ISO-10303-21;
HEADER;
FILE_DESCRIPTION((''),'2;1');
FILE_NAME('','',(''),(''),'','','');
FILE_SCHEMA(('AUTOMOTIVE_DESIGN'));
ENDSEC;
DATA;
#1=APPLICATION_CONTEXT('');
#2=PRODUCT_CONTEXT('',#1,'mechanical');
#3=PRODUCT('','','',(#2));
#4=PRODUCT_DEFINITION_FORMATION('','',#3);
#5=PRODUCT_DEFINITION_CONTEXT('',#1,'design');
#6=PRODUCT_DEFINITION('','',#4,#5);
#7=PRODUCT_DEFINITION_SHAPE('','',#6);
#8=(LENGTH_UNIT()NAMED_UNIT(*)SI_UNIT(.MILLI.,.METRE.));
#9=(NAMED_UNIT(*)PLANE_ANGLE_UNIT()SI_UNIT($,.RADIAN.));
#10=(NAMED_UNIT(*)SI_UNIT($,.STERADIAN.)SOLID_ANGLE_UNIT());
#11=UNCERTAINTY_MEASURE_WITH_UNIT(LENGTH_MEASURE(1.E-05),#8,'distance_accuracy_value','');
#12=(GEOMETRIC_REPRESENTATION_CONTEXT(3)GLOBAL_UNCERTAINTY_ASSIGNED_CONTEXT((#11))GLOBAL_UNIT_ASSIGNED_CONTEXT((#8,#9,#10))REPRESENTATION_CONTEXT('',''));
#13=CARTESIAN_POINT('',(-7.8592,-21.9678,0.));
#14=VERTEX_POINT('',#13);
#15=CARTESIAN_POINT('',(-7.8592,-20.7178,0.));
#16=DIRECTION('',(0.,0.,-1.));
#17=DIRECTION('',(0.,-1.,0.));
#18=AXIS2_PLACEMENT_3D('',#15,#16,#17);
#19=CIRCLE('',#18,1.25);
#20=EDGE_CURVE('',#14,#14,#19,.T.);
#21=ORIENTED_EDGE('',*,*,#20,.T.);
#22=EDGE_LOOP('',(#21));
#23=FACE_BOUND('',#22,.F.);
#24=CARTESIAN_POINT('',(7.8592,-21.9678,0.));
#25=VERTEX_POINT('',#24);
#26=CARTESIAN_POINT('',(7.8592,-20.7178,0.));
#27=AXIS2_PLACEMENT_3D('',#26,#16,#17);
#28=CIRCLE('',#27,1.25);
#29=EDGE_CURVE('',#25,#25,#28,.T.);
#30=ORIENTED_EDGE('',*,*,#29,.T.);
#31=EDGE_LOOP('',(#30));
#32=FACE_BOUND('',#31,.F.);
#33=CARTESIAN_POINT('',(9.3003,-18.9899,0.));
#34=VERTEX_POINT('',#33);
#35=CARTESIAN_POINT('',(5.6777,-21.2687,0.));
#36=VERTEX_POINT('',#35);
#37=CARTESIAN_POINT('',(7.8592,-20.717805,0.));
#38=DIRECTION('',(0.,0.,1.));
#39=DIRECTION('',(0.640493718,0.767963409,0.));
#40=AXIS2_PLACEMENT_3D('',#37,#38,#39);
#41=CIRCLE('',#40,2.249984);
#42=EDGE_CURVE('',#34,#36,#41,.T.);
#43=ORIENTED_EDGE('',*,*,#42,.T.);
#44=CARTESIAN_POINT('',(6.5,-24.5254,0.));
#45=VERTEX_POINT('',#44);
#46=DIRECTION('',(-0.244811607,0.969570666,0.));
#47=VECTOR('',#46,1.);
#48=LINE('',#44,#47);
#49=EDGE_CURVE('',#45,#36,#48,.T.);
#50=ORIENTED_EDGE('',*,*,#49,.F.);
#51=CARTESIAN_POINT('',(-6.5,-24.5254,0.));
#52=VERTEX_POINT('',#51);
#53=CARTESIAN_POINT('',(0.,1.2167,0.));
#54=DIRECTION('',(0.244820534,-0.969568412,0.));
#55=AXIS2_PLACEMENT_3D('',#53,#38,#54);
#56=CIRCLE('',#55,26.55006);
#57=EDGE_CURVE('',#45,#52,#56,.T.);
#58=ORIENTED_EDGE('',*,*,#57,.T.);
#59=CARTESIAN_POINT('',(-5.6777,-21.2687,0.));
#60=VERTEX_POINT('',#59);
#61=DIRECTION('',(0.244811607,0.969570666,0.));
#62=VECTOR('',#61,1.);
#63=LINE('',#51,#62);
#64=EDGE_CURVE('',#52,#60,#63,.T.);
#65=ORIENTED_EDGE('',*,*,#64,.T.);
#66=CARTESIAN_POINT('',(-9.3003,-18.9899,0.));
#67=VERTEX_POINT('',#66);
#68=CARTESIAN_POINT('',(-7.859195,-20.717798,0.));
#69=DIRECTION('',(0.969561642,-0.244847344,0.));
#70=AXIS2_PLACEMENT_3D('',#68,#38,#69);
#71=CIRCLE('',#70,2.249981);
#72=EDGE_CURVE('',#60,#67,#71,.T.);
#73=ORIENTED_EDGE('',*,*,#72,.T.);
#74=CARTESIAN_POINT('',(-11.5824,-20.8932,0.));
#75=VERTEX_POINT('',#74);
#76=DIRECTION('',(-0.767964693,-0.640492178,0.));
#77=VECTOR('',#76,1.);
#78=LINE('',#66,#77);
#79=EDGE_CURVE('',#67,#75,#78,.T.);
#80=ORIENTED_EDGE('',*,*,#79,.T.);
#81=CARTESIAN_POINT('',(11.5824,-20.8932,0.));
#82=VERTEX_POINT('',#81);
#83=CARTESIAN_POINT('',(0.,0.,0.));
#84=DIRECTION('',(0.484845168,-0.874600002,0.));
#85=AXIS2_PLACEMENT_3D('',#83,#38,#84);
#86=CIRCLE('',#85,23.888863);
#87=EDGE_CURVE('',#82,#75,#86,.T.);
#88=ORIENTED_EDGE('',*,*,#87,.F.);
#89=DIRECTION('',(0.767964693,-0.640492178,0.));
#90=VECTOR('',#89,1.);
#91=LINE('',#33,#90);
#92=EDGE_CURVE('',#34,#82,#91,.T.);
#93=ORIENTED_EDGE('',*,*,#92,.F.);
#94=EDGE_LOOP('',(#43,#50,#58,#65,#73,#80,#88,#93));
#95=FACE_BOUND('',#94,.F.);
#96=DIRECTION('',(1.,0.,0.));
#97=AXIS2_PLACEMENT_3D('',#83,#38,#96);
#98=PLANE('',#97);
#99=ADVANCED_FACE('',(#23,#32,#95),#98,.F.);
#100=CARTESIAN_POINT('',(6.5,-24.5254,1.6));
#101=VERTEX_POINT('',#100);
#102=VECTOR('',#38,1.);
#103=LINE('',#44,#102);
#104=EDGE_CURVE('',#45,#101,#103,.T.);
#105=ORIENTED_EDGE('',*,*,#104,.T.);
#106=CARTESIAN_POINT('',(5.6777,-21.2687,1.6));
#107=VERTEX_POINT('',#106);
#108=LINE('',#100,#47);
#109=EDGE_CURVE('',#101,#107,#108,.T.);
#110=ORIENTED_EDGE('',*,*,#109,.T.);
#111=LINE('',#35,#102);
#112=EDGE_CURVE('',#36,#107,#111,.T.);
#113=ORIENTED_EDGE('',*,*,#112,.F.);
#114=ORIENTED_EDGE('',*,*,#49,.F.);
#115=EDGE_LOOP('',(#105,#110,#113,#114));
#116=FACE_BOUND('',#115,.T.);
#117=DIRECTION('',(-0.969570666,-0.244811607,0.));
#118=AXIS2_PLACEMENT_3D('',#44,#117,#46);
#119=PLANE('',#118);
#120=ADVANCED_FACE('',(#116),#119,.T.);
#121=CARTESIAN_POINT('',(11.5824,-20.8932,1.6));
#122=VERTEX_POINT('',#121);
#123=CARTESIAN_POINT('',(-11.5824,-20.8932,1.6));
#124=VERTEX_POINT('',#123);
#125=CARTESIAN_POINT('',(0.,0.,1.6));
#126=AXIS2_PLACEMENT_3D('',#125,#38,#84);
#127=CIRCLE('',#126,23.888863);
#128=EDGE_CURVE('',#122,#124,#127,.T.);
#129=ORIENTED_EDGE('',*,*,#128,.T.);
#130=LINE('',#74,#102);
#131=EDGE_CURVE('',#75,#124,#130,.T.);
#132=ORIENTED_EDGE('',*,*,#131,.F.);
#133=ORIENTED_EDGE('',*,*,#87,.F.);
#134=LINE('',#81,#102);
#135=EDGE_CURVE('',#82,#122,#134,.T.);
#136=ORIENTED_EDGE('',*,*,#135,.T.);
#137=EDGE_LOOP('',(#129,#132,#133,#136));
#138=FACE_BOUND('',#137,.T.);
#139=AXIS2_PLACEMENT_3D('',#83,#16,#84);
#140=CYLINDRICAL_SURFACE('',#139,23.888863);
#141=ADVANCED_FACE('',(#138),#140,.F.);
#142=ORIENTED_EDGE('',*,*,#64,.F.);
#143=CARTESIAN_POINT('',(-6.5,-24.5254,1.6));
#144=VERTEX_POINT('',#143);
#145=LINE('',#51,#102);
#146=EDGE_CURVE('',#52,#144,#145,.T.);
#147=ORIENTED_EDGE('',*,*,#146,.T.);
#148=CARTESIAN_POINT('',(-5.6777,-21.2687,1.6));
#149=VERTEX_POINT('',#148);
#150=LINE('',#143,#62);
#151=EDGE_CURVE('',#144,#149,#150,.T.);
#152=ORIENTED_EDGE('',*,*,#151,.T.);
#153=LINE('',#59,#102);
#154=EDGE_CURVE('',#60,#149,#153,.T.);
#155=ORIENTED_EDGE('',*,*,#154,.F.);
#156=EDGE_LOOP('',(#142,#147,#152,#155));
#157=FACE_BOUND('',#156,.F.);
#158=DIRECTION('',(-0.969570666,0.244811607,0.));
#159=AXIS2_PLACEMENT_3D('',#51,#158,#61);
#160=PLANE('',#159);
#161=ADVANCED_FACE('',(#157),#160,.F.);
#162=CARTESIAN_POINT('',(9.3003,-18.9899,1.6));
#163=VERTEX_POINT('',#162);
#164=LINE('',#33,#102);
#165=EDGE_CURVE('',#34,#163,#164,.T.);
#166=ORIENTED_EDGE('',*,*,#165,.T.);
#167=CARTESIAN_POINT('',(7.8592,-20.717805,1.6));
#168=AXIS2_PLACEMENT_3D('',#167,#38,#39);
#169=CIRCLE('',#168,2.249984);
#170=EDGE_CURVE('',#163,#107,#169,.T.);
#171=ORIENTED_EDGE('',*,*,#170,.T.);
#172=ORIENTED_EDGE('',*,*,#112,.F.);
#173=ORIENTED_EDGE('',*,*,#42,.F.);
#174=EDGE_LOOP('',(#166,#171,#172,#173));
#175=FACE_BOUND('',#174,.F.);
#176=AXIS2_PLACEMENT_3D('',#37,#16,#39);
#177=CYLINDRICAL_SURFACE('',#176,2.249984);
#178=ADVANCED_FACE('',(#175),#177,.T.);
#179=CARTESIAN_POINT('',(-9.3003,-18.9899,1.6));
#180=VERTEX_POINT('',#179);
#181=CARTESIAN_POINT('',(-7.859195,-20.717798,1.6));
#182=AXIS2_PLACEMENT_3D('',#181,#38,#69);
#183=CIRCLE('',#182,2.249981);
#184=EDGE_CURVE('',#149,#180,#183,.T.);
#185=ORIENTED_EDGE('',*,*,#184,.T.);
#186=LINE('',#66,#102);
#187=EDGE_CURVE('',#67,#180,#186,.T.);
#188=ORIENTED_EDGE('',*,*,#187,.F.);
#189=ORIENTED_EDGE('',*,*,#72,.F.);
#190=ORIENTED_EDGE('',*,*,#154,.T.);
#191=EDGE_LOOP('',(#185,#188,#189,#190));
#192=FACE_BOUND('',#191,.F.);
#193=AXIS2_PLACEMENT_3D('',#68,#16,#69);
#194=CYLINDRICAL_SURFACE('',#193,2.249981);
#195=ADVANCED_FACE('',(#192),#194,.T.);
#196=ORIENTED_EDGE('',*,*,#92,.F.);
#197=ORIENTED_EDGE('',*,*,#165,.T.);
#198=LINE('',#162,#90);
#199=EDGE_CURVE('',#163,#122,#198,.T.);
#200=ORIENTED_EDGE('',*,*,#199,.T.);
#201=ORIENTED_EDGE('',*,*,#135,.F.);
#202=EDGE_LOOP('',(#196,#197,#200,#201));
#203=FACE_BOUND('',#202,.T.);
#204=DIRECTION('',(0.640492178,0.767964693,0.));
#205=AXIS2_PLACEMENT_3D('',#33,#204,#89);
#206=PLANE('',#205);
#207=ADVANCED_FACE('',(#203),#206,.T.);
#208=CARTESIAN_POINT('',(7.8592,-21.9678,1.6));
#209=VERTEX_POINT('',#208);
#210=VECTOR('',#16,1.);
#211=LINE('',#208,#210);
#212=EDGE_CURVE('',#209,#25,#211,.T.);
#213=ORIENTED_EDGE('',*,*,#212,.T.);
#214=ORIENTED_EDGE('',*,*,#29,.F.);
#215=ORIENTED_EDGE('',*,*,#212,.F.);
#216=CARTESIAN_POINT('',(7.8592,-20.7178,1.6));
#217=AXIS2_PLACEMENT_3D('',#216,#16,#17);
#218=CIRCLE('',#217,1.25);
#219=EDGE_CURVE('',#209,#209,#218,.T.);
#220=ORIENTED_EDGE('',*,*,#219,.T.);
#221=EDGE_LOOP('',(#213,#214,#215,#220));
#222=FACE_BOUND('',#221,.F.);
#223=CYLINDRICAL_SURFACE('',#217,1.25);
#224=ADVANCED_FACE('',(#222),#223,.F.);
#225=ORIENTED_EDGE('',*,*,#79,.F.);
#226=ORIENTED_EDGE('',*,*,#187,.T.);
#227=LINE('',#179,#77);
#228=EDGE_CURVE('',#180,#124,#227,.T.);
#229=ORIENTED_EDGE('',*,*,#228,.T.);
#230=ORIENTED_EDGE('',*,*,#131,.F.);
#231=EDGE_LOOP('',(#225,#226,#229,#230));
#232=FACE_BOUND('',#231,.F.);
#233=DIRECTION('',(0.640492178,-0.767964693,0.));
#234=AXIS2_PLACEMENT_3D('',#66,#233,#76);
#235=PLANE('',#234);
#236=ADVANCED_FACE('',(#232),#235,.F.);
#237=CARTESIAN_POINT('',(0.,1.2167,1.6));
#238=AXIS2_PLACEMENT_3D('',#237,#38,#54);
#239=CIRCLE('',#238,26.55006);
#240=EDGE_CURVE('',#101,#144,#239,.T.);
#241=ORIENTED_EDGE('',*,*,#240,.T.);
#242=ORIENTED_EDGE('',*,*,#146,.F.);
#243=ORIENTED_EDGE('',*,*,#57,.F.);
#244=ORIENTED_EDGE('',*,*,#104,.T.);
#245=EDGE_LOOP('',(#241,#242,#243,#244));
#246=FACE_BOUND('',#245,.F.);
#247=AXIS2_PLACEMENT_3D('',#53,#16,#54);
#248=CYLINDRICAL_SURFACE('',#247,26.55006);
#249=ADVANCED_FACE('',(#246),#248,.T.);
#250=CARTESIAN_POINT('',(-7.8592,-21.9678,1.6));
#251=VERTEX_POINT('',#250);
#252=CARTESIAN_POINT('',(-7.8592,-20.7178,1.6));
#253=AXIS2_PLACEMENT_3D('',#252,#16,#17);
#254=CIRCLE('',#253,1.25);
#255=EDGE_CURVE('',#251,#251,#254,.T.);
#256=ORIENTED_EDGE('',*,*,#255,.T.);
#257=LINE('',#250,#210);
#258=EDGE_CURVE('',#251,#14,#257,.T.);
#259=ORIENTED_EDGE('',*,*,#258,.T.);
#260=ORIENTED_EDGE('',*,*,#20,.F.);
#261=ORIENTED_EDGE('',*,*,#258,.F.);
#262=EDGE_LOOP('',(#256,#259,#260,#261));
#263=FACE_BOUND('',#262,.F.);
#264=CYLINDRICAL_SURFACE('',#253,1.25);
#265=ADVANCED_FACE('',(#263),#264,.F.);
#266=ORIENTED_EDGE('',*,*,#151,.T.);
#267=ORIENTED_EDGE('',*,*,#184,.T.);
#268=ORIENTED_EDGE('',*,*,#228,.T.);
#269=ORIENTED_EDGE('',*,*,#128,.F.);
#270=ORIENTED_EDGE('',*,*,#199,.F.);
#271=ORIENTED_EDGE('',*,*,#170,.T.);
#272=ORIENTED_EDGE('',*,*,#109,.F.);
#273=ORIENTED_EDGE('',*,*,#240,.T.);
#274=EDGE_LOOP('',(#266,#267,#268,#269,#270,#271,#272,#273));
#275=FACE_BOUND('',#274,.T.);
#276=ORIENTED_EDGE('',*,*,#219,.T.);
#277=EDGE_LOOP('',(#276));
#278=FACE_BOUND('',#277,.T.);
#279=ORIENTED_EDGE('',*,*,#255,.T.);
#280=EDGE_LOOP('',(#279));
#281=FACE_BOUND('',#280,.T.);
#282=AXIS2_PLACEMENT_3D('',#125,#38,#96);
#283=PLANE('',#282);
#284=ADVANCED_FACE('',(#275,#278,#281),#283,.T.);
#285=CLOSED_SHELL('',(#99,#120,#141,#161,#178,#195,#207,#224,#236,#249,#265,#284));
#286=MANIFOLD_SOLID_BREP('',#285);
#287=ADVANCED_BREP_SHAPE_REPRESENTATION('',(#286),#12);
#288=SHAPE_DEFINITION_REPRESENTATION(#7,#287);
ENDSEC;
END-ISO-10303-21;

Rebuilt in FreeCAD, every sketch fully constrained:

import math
import FreeCAD as App
import Part
import Sketcher
from FreeCAD import Vector
Q = App.Units.Quantity

doc = App.newDocument("Part")
body = doc.addObject("PartDesign::Body", "Body")

# Sketch on XY plane
sketch1 = body.newObject("Sketcher::SketchObject", "Sketch")
sketch1.AttachmentSupport = (doc.getObject("XY_Plane"), [""])
sketch1.MapMode = "FlatFace"
sketch1.addGeometry([
    Part.LineSegment(Vector(5.6777, -21.2687, 0), Vector(6.5, -24.5254, 0)),  # 0
    Part.ArcOfCircle(Part.Circle(Vector(0, 1.2167, 0), Vector(0, 0, 1), 26.55006), math.radians(-75.828772), math.radians(255.828772)),  # 1
    Part.LineSegment(Vector(-6.5, -24.5254, 0), Vector(-5.6777, -21.2687, 0)),  # 2
    Part.ArcOfCircle(Part.Circle(Vector(-7.8592, -20.7178, 0), Vector(0, 0, 1), 2.249985), math.radians(-14.172737), math.radians(129.82872)),  # 3
    Part.LineSegment(Vector(-9.3003, -18.9899, 0), Vector(-11.5824, -20.8932, 0)),  # 4
    Part.ArcOfCircle(Part.Circle(Vector(0, 0, 0), Vector(0, 0, 1), 23.888863), math.radians(-60.997671), math.radians(240.997671)),  # 5
    Part.LineSegment(Vector(11.5824, -20.8932, 0), Vector(9.3003, -18.9899, 0)),  # 6
    Part.ArcOfCircle(Part.Circle(Vector(7.8592, -20.7178, 0), Vector(0, 0, 1), 2.249979), math.radians(50.17128), math.radians(194.172737)),  # 7
], False)
sketch1.addConstraint([
    Sketcher.Constraint("Coincident", 0, 2, 1, 1),
    Sketcher.Constraint("Coincident", 1, 2, 2, 1),
    Sketcher.Constraint("Tangent", 2, 2, 3, 1),
    Sketcher.Constraint("Tangent", 3, 2, 4, 1),
    Sketcher.Constraint("Coincident", 4, 2, 5, 2),
    Sketcher.Constraint("Coincident", 5, 1, 6, 1),
    Sketcher.Constraint("Tangent", 6, 2, 7, 1),
    Sketcher.Constraint("Tangent", 7, 2, 0, 1),
    Sketcher.Constraint("Coincident", 5, 3, -1, 1),
    Sketcher.Constraint("Equal", 3, 7),
    Sketcher.Constraint("Symmetric", 3, 3, 7, 3, -2),
    Sketcher.Constraint("Symmetric", 0, 2, 1, 2, -2),
    Sketcher.Constraint("Horizontal", 4, 2, 5, 1),
    Sketcher.Constraint("Radius", 1, 26.55),
    Sketcher.Constraint("Radius", 3, 2.25),
    Sketcher.Constraint("DistanceX", -1, 1, 0, 2, 6.5),
    Sketcher.Constraint("Radius", 5, 23.8889),
    Sketcher.Constraint("DistanceY", -1, 1, 1, 3, 1.2167),
    Sketcher.Constraint("Angle", 0, Q("-75.8293 deg")),
    Sketcher.Constraint("DistanceY", 3, 2, -1, 1, 18.99),
    Sketcher.Constraint("DistanceX", 2, 2, 5, 1, 17.26),
])
pad1 = body.newObject("PartDesign::Pad", "Pad")
pad1.Profile = sketch1
pad1.Length = 1.6

# Sketch on XY plane
sketch2 = body.newObject("Sketcher::SketchObject", "Sketch001")
sketch2.AttachmentSupport = (doc.getObject("XY_Plane"), [""])
sketch2.MapMode = "FlatFace"
sketch2.AttachmentOffset = App.Placement(Vector(0, 0, 1.6), App.Rotation())
sketch2.addGeometry(Part.Circle(Vector(-7.8592, -20.7178, 0), Vector(0, 0, 1), 1.25), False)
sketch2.addConstraint([
    Sketcher.Constraint("Diameter", 0, 2.5),
    Sketcher.Constraint("DistanceX", 0, 3, -1, 1, 7.8592),
    Sketcher.Constraint("DistanceY", 0, 3, -1, 1, 20.7178),
])
doc.recompute()
hole = body.newObject("PartDesign::Hole", "Hole")
hole.Profile = sketch2
hole.ThreadType = "None"
hole.Diameter = 2.5
hole.DepthType = "ThroughAll"

# Sketch on XY plane
sketch3 = body.newObject("Sketcher::SketchObject", "Sketch002")
sketch3.AttachmentSupport = (doc.getObject("XY_Plane"), [""])
sketch3.MapMode = "FlatFace"
sketch3.AttachmentOffset = App.Placement(Vector(0, 0, 1.6), App.Rotation())
sketch3.addGeometry(Part.Circle(Vector(7.8592, -20.7178, 0), Vector(0, 0, 1), 1.25), False)
sketch3.addConstraint([
    Sketcher.Constraint("Diameter", 0, 2.5),
    Sketcher.Constraint("DistanceX", -1, 1, 0, 3, 7.8592),
    Sketcher.Constraint("DistanceY", 0, 3, -1, 1, 20.7178),
])
doc.recompute()
hole2 = body.newObject("PartDesign::Hole", "Hole001")
hole2.Profile = sketch3
hole2.ThreadType = "None"
hole2.Diameter = 2.5
hole2.DepthType = "ThroughAll"

doc.recompute()
